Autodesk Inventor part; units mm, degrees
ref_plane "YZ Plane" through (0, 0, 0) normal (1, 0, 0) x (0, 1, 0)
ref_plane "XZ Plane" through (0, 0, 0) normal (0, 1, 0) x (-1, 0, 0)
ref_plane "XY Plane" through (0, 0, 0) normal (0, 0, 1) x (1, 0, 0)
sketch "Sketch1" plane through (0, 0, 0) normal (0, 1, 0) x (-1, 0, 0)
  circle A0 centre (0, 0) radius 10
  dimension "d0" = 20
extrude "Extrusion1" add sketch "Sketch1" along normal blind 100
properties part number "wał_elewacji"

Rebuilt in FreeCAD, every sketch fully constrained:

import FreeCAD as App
import Part
import Sketcher

V = App.Vector
Q = App.Units.Quantity

doc = App.newDocument("Part")
params = doc.addObject("Spreadsheet::Sheet", "Params")
for row, (alias, value) in enumerate([
    ("pad1_length", "3.9370079 in"),
], start=1):
    params.set(f"A{row}", alias)
    params.set(f"B{row}", "=" + value)
    params.setAlias(f"B{row}", alias)

body = doc.addObject("PartDesign::Body", "Body")

# Sketch on XZ plane
sketch1 = body.newObject("Sketcher::SketchObject", "Sketch")
sketch1.AttachmentSupport = (doc.getObject("XZ_Plane"), [""])
sketch1.MapMode = "FlatFace"
sketch1.addGeometry(Part.Circle(V(0, 0, 0), V(0, 0, 1), 10), False)
sketch1.addConstraint([
    Sketcher.Constraint("Coincident", 0, 3, -1, 1),
    Sketcher.Constraint("Diameter", 0, Q("0.7874 in")),
])
pad1 = body.newObject("PartDesign::Pad", "Pad")
pad1.Profile = sketch1
pad1.setExpression("Length", "Params.pad1_length")
pad1.Reversed = True

doc.recompute()
